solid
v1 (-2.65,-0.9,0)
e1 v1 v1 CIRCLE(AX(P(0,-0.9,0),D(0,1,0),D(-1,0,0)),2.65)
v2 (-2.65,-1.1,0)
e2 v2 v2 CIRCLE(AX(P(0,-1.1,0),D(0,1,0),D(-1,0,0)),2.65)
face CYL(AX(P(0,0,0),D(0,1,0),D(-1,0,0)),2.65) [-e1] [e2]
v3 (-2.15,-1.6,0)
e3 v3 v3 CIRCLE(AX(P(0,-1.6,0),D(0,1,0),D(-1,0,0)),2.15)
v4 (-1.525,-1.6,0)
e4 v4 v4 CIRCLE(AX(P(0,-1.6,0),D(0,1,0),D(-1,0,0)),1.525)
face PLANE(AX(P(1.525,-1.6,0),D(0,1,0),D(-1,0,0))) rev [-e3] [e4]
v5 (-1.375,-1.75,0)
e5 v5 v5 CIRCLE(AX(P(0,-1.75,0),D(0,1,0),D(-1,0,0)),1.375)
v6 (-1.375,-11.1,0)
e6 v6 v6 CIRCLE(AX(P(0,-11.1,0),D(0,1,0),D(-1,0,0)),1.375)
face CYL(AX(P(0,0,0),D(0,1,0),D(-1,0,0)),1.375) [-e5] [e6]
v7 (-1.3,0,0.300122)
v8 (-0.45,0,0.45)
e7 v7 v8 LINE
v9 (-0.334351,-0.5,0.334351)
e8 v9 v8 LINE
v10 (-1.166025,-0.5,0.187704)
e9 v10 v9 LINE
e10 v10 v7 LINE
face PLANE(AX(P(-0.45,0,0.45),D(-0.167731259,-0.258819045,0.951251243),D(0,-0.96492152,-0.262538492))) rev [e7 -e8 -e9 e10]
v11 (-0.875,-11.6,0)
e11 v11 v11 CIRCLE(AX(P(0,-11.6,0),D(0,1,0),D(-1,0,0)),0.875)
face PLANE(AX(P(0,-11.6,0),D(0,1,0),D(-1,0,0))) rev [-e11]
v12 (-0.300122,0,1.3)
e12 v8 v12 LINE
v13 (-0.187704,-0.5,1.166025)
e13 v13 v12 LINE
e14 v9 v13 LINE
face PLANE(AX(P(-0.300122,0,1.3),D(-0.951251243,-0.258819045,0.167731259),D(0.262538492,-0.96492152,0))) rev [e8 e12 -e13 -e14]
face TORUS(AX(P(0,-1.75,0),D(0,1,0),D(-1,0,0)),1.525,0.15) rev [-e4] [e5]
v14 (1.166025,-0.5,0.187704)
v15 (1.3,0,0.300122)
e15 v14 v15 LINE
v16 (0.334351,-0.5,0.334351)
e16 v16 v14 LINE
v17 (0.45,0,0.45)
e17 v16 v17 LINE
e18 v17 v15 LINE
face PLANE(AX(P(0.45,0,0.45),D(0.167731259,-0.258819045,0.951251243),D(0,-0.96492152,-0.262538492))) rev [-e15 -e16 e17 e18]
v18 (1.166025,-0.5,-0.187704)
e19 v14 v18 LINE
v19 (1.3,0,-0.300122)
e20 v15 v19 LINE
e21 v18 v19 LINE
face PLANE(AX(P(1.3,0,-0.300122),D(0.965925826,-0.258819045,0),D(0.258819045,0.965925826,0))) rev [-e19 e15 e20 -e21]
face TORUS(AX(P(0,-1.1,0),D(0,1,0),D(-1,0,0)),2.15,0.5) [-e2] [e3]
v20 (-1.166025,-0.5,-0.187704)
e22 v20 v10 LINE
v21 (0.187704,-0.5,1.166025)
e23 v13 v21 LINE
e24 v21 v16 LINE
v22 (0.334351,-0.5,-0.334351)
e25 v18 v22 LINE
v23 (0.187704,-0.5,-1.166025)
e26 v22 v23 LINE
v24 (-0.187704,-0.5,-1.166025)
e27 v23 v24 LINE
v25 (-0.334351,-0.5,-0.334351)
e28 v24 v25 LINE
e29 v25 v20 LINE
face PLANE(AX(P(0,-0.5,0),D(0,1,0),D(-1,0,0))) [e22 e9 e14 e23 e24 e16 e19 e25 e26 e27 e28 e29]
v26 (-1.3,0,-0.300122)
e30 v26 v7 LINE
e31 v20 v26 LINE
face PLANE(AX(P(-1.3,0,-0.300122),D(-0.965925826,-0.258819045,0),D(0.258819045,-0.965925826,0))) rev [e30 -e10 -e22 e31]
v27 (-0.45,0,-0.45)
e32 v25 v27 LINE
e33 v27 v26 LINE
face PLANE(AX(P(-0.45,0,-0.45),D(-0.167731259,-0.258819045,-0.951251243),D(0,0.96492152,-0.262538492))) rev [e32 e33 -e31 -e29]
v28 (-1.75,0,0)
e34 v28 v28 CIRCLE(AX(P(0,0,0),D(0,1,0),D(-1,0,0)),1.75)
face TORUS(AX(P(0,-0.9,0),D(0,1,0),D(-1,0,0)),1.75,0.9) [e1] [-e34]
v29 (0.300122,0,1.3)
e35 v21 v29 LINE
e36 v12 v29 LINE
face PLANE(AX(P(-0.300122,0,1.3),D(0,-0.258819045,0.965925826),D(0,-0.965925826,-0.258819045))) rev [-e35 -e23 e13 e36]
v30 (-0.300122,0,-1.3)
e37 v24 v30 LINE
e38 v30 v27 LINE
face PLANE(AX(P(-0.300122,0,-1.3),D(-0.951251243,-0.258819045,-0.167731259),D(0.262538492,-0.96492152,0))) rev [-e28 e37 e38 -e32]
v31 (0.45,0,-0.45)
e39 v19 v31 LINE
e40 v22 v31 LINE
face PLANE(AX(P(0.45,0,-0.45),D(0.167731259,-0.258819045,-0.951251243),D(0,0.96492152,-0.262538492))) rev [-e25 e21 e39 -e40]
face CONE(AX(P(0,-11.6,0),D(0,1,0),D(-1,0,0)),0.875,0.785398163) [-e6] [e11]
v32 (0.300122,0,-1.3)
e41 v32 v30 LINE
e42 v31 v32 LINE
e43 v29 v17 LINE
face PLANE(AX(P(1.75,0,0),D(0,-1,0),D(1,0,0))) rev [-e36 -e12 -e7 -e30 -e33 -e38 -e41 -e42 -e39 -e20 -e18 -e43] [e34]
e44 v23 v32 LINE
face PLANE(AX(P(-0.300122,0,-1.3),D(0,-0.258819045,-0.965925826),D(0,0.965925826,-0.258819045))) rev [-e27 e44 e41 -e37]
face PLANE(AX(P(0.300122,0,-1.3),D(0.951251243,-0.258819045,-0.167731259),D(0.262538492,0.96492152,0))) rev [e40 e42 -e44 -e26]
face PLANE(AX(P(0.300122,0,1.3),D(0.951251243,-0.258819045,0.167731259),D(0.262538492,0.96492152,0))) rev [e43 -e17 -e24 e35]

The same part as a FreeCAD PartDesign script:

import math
import FreeCAD as App
import Part
import Sketcher
Q = App.Units.Quantity


def add_polygon(sketch, points):
    """Adds a closed chain of lines whose ends are joined by coincident constraints."""
    first, n = sketch.GeometryCount, len(points)
    for a, b in zip(points, points[1:] + points[:1]):
        sketch.addGeometry(Part.LineSegment(App.Vector(*a, 0), App.Vector(*b, 0)), False)
    for i in range(n):
        sketch.addConstraint(Sketcher.Constraint("Coincident", first + i, 2, first + (i + 1) % n, 1))

doc = App.newDocument("Part")
params = doc.addObject("Spreadsheet::Sheet", "Params")
for row, (alias, value) in enumerate([
    ("sketch1_radius", "0.5 mm"),
    ("sketch1_radius2", "0.9 mm"),
    ("sketch1_radius3", "0.15 mm"),
    ("sketch1_height", "0.2 mm"),
    ("sketch1_height2", "11.6 mm"),
    ("revolution_angle", "360 deg"),
    ("pocket1_length", "0.5 mm"),
    ("pocket1_taper", "-15 deg"),
], start=1):
    params.set(f"A{row}", alias)
    params.set(f"B{row}", "=" + value)
    params.setAlias(f"B{row}", alias)

body = doc.addObject("PartDesign::Body", "Body")

sketch1 = body.newObject("Sketcher::SketchObject", "Sketch")
sketch1.AttachmentSupport = (doc.getObject("XY_Plane"), [""])
sketch1.MapMode = "FlatFace"
sketch1.addGeometry([
    Part.LineSegment(App.Vector(0, -11.6, 0), App.Vector(0.88, -11.6, 0)),
    Part.LineSegment(App.Vector(0.88, -11.6, 0), App.Vector(1.38, -11.1, 0)),
    Part.LineSegment(App.Vector(1.38, -11.1, 0), App.Vector(1.38, -1.75, 0)),
    Part.ArcOfCircle(Part.Circle(App.Vector(1.53, -1.75, 0), App.Vector(0, 0, 1), 0.15), math.radians(90), math.radians(180)),
    Part.LineSegment(App.Vector(1.52, -1.6, 0), App.Vector(2.15, -1.6, 0)),
    Part.ArcOfCircle(Part.Circle(App.Vector(2.15, -1.1, 0), App.Vector(0, 0, 1), 0.5), math.radians(-90), math.radians(0)),
    Part.LineSegment(App.Vector(2.65, -1.1, 0), App.Vector(2.65, -0.9, 0)),
    Part.ArcOfCircle(Part.Circle(App.Vector(1.75, -0.9, 0), App.Vector(0, 0, 1), 0.9), math.radians(0), math.radians(90)),
    Part.LineSegment(App.Vector(1.75, 0, 0), App.Vector(0, 0, 0)),
    Part.LineSegment(App.Vector(0, 0, 0), App.Vector(0, -11.6, 0)),
], False)
sketch1.addConstraint([
    Sketcher.Constraint("Coincident", 0, 2, 1, 1),
    Sketcher.Constraint("Coincident", 1, 2, 2, 1),
    Sketcher.Constraint("Tangent", 2, 2, 3, 2),
    Sketcher.Constraint("Tangent", 3, 1, 4, 1),
    Sketcher.Constraint("Tangent", 4, 2, 5, 1),
    Sketcher.Constraint("Tangent", 5, 2, 6, 1),
    Sketcher.Constraint("Tangent", 6, 2, 7, 1),
    Sketcher.Constraint("Tangent", 7, 2, 8, 1),
    Sketcher.Constraint("Coincident", 8, 2, 9, 1),
    Sketcher.Constraint("Coincident", 9, 2, 0, 1),
    Sketcher.Constraint("Horizontal", 0),
    Sketcher.Constraint("Vertical", 2),
    Sketcher.Constraint("Horizontal", 4),
    Sketcher.Constraint("Vertical", 6),
    Sketcher.Constraint("Horizontal", 8),
    Sketcher.Constraint("Vertical", 9),
    Sketcher.Constraint("Coincident", 8, 2, -1, 1),
    Sketcher.Constraint("Radius", 5, 0.5),
    Sketcher.Constraint("Radius", 7, 0.9),
    Sketcher.Constraint("Angle", 1, Q("45 deg")),
    Sketcher.Constraint("Radius", 3, 0.15),
    Sketcher.Constraint("DistanceY", 6, 1, 6, 2, 0.2),
    Sketcher.Constraint("DistanceY", 9, 2, 9, 1, 11.6),
    Sketcher.Constraint("DistanceY", 1, 2, 5, 3, 10.0),
    Sketcher.Constraint("DistanceX", 8, 2, 8, 1, 1.75),
    Sketcher.Constraint("DistanceX", 0, 1, 0, 2, 0.875),
])
sketch1.setExpression("Constraints[17]", "Params.sketch1_radius")
sketch1.setExpression("Constraints[18]", "Params.sketch1_radius2")
sketch1.setExpression("Constraints[20]", "Params.sketch1_radius3")
sketch1.setExpression("Constraints[21]", "Params.sketch1_height")
sketch1.setExpression("Constraints[22]", "Params.sketch1_height2")
revolution = body.newObject("PartDesign::Revolution", "Revolution")
revolution.Profile = sketch1
revolution.ReferenceAxis = (sketch1, ["V_Axis"])
revolution.setExpression("Angle", "Params.revolution_angle")

sketch2 = body.newObject("Sketcher::SketchObject", "Sketch001")
sketch2.AttachmentSupport = (doc.getObject("XZ_Plane"), [""])
sketch2.MapMode = "FlatFace"
add_polygon(sketch2, [(-0.3, -1.3), (-0.5, -0.5), (-1.3, -0.3), (-1.3, 0.3), (-0.5, 0.5), (-0.3, 1.3), (0.3, 1.3), (0.5, 0.5), (1.3, 0.3), (1.3, -0.3), (0.5, -0.5), (0.3, -1.3)])
sketch2.addConstraint([
    Sketcher.Constraint("Vertical", 2),
    Sketcher.Constraint("Horizontal", 5),
    Sketcher.Constraint("Vertical", 8),
    Sketcher.Constraint("Horizontal", 11),
    Sketcher.Constraint("Symmetric", 0, 2, 6, 2, -1, 1),
    Sketcher.Constraint("Symmetric", 1, 2, 7, 2, -1, 1),
    Sketcher.Constraint("Symmetric", 3, 2, 9, 2, -1, 1),
    Sketcher.Constraint("Symmetric", 4, 2, 10, 2, -1, 1),
    Sketcher.Constraint("Symmetric", 3, 2, 6, 2, -2),
    Sketcher.Constraint("Perpendicular", 0, 3),
    Sketcher.Constraint("Perpendicular", 1, 4),
    Sketcher.Constraint("Perpendicular", 3, 6),
    Sketcher.Constraint("Perpendicular", 6, 9),
    Sketcher.Constraint("Horizontal", 2, 2, 7, 2),
    Sketcher.Constraint("Equal", 11, 2),
    Sketcher.Constraint("Equal", 0, 1),
    Sketcher.Constraint("Angle", 0, Q("100 deg")),
    Sketcher.Constraint("DistanceX", 1, 2, -1, 1, 1.3),
    Sketcher.Constraint("DistanceY", 0, 2, 3, 2, 0.9),
])
pocket1 = body.newObject("PartDesign::Pocket", "Pocket")
pocket1.Profile = sketch2
pocket1.setExpression("Length", "Params.pocket1_length")
pocket1.Reversed = True
pocket1.setExpression("TaperAngle", "Params.pocket1_taper")

doc.recompute()
